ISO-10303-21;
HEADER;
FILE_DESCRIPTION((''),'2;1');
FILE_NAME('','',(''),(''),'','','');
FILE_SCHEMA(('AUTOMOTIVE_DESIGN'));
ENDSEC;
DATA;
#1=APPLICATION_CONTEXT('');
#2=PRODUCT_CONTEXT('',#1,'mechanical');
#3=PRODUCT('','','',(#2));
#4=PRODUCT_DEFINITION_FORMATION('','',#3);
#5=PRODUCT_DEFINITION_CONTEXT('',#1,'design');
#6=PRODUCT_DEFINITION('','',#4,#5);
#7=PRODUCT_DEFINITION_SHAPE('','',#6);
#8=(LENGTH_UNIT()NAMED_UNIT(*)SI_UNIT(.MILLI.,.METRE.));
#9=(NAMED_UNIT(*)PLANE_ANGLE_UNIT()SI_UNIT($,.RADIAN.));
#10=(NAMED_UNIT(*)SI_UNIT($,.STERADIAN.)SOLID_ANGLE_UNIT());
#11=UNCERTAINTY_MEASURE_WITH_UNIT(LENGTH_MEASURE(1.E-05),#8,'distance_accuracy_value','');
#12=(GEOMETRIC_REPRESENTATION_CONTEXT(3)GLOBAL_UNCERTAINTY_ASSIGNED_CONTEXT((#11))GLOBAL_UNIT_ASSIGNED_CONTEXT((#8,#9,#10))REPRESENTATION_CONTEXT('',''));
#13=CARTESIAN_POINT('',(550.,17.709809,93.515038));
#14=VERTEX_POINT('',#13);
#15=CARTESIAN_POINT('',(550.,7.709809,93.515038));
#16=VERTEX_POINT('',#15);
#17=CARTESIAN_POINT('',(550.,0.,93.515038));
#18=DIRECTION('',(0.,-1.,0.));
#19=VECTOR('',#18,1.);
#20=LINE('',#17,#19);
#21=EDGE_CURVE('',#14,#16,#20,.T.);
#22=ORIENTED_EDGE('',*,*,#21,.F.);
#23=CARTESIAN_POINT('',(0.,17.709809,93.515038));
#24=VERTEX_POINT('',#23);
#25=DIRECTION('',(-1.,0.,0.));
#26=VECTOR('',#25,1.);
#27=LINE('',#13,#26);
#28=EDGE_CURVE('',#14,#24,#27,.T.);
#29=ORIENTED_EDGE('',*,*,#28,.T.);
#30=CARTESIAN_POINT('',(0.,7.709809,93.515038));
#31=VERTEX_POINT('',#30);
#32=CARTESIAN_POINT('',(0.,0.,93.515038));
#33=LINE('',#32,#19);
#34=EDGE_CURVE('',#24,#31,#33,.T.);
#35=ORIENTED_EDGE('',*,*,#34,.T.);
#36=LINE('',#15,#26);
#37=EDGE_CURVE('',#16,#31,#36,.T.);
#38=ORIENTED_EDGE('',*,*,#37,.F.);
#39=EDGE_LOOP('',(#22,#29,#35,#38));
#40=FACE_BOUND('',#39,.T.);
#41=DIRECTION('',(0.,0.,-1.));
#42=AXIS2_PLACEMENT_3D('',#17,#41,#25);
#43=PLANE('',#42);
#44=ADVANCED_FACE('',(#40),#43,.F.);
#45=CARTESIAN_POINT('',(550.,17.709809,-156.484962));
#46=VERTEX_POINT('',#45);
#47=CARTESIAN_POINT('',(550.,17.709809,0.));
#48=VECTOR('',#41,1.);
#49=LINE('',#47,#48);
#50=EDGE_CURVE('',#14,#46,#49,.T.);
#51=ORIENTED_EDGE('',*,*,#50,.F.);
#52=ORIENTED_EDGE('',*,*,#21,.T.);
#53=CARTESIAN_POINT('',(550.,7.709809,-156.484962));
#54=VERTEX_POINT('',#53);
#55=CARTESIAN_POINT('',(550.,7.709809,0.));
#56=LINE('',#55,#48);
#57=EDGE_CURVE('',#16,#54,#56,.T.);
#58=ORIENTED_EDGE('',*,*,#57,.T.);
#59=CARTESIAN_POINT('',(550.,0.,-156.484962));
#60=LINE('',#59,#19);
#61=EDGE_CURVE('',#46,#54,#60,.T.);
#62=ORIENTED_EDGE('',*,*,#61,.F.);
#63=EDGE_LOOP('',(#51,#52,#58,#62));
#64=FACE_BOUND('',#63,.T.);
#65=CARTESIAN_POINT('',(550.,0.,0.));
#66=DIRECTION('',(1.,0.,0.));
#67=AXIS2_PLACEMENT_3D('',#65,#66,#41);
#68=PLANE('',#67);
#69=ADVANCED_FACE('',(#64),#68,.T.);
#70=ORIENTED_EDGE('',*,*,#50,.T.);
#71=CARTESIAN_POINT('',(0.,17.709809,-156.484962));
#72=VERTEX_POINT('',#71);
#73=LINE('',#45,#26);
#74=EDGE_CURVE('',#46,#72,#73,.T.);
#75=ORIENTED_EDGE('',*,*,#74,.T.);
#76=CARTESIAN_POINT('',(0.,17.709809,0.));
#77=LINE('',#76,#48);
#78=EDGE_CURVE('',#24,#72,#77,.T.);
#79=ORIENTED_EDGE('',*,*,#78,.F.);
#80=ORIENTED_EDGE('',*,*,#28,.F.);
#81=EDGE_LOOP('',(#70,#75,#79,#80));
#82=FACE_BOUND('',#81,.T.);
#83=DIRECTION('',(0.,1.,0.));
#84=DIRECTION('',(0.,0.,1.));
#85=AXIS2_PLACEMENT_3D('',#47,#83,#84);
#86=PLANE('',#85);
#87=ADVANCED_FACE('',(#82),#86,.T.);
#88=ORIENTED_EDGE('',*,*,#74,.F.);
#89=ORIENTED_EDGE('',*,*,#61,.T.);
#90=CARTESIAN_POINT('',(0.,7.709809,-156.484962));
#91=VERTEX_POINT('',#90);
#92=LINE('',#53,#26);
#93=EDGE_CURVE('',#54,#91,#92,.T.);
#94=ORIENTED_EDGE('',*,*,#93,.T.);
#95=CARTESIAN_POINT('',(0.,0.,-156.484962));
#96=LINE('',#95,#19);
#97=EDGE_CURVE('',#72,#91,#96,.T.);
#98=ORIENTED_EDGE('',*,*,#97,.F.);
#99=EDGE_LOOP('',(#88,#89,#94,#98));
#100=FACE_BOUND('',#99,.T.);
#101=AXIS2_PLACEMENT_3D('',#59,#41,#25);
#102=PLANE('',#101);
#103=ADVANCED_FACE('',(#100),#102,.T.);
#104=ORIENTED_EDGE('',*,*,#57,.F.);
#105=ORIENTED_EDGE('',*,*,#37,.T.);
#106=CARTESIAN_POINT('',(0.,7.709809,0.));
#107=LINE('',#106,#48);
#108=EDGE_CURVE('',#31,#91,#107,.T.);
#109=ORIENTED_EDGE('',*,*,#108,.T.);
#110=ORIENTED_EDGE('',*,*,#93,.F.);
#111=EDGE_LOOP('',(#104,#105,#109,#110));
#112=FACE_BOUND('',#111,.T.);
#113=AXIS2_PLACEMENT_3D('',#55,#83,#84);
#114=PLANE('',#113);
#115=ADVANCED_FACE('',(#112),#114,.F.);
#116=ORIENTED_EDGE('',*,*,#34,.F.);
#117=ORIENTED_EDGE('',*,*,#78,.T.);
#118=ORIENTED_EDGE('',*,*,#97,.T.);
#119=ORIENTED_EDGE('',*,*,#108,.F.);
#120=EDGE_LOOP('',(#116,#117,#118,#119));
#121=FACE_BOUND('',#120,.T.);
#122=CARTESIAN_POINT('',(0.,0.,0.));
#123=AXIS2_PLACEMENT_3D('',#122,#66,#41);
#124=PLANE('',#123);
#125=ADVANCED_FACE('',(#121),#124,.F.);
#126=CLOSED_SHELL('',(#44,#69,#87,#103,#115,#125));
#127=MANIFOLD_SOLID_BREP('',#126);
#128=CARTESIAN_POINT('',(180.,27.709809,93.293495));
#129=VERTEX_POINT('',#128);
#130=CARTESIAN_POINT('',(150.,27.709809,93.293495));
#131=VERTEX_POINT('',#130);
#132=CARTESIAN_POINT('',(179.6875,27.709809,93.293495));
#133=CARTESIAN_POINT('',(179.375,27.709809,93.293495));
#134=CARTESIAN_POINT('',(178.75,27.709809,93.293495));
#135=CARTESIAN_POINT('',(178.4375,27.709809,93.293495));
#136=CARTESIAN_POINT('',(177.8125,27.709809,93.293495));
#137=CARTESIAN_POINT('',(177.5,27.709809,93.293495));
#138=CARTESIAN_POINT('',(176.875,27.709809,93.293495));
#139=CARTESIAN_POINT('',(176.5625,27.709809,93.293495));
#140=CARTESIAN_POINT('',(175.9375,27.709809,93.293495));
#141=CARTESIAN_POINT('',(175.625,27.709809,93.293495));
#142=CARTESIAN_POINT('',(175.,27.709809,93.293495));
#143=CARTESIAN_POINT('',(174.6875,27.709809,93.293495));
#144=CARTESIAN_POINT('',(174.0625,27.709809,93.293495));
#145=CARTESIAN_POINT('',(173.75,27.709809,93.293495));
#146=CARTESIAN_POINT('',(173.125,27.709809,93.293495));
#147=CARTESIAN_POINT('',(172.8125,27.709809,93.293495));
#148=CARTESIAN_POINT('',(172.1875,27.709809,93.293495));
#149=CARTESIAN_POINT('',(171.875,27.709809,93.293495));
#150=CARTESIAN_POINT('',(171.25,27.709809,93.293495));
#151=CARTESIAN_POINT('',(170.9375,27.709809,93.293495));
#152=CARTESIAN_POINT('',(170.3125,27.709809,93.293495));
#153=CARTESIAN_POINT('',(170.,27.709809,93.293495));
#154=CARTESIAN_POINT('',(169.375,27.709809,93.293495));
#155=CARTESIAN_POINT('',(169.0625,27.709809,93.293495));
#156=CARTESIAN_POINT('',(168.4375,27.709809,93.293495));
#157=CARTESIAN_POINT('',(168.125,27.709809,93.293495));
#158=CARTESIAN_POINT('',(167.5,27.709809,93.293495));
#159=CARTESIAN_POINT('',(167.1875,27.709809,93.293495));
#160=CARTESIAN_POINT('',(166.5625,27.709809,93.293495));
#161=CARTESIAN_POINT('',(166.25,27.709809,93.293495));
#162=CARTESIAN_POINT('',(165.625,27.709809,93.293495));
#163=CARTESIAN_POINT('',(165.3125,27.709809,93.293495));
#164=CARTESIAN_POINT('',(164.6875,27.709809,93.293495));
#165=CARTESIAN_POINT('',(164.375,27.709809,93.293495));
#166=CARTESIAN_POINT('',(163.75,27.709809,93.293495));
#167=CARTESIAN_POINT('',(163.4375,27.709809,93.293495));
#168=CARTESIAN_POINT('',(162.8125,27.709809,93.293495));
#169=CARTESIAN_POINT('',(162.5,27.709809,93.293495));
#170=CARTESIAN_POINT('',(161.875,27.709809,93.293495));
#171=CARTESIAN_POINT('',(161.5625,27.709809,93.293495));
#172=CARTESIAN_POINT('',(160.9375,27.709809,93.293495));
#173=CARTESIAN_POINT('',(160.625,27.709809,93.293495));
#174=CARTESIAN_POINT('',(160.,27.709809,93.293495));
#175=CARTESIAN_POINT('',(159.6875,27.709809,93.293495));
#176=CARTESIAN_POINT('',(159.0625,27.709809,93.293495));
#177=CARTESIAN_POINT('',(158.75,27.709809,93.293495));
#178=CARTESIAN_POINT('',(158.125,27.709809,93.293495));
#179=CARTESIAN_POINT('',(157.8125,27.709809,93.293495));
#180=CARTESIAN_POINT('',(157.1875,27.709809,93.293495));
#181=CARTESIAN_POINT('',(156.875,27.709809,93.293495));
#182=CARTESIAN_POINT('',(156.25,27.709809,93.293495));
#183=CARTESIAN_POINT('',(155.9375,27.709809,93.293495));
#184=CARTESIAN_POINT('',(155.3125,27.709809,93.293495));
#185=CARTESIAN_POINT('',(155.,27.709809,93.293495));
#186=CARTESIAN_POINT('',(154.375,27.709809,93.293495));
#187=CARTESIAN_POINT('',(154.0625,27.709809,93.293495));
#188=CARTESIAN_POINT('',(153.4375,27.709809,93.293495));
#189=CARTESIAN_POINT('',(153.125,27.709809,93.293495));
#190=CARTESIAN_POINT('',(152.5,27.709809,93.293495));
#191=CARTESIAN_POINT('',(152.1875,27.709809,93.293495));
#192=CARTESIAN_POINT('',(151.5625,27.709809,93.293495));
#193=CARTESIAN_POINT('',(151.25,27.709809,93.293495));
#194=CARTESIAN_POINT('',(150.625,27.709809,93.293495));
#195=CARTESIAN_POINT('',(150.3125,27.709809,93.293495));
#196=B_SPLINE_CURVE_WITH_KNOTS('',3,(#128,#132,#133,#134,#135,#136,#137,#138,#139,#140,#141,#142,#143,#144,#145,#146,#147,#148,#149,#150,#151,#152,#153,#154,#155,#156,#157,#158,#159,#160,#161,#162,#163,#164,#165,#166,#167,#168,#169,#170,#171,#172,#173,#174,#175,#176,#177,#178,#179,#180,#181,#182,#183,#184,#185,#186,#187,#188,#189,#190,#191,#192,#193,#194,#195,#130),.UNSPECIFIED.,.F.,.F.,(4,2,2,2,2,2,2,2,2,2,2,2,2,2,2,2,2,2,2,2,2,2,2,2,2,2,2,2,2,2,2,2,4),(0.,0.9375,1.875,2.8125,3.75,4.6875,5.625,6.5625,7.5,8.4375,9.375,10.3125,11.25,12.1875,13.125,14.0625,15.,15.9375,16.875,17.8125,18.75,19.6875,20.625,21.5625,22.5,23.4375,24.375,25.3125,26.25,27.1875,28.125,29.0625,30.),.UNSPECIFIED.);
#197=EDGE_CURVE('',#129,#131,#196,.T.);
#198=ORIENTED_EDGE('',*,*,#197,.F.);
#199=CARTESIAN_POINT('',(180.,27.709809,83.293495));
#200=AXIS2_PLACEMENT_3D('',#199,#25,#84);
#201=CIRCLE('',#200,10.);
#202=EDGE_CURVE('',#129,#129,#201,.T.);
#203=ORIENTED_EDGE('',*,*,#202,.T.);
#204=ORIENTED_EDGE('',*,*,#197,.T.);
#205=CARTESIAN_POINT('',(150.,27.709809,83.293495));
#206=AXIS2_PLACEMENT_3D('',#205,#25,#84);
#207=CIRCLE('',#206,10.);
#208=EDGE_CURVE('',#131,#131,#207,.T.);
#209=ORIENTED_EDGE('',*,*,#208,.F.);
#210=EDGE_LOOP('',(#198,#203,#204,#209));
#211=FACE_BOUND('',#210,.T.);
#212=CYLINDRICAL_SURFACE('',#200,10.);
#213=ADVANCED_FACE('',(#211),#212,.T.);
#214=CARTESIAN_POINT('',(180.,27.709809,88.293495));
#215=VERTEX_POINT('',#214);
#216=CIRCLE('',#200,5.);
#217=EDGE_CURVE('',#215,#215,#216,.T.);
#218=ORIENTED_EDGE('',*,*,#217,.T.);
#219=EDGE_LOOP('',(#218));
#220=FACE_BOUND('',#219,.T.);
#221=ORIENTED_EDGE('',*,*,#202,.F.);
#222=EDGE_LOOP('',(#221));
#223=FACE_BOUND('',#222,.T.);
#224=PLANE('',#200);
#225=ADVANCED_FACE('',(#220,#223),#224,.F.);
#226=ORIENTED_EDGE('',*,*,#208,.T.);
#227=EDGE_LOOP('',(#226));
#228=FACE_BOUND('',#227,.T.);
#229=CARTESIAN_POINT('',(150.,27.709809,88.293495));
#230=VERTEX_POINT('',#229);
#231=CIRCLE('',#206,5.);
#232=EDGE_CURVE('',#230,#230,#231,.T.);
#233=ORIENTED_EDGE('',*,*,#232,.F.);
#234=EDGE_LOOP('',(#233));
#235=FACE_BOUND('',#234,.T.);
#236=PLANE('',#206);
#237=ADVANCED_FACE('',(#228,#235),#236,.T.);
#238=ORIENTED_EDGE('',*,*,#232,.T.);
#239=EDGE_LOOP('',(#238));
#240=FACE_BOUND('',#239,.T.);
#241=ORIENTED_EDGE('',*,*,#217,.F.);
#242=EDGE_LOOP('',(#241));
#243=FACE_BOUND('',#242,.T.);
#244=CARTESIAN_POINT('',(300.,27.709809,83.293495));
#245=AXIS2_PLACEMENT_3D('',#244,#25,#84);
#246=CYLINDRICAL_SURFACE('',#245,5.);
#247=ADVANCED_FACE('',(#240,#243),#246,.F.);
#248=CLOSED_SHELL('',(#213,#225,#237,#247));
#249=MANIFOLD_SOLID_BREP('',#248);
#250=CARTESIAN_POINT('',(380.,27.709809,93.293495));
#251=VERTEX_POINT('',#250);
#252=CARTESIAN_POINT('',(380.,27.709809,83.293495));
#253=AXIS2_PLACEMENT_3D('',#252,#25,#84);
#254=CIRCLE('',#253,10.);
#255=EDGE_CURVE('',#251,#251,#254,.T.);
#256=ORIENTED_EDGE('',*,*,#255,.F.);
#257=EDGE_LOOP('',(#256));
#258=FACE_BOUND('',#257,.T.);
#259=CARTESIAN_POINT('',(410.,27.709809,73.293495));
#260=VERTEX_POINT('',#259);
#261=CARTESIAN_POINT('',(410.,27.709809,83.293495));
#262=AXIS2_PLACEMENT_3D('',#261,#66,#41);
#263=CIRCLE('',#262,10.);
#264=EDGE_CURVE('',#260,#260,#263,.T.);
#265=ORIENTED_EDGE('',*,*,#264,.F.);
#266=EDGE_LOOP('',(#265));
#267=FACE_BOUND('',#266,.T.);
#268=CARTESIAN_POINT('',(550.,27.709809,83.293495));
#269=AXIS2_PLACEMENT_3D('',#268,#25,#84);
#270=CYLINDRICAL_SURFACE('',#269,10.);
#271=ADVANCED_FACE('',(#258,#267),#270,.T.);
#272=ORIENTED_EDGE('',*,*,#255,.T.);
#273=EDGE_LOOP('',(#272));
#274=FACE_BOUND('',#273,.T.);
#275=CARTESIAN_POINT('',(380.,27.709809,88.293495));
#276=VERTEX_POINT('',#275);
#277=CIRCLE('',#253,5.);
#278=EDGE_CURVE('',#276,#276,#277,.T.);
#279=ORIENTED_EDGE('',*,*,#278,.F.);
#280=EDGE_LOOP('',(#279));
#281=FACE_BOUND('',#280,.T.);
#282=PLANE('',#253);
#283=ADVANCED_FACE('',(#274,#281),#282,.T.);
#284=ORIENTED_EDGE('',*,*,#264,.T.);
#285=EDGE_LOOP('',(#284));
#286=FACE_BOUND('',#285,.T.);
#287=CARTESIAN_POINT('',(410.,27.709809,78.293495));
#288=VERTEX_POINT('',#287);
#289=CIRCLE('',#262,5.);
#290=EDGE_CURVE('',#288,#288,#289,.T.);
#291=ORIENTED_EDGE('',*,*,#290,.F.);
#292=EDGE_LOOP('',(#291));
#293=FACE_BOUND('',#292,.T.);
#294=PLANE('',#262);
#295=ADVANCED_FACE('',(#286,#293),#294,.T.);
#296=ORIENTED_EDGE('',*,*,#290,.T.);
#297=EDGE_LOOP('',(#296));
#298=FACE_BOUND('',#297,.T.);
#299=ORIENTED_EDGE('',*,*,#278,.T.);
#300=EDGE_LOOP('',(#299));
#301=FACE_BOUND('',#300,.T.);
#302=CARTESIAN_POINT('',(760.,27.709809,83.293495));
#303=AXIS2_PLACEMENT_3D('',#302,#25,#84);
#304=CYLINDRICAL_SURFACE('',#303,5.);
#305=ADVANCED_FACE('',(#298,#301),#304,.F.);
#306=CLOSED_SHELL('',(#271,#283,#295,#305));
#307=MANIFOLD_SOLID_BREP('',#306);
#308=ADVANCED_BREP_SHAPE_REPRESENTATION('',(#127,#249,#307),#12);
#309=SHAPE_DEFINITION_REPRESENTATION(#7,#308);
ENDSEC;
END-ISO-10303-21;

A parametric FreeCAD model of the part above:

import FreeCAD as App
import Part
import Sketcher
Q = App.Units.Quantity


def add_polygon(sketch, points):
    """Adds a closed chain of lines whose ends are joined by coincident constraints."""
    first, n = sketch.GeometryCount, len(points)
    for a, b in zip(points, points[1:] + points[:1]):
        sketch.addGeometry(Part.LineSegment(App.Vector(*a, 0), App.Vector(*b, 0)), False)
    for i in range(n):
        sketch.addConstraint(Sketcher.Constraint("Coincident", first + i, 2, first + (i + 1) % n, 1))

doc = App.newDocument("Part")
body = doc.addObject("PartDesign::Body", "Body")

# Sketch on YZ plane
sketch1 = body.newObject("Sketcher::SketchObject", "Sketch")
sketch1.AttachmentSupport = (doc.getObject("YZ_Plane"), [""])
sketch1.MapMode = "FlatFace"
sketch1.addGeometry(Part.Circle(App.Vector(28, 83, 0), App.Vector(0, 0, 1), 10), False)
sketch1.addConstraint(Sketcher.Constraint("Diameter", 0, Q("20 mm")))
sketch1.addConstraint(Sketcher.Constraint("DistanceX", -1, 1, 0, 3, Q("27.709809 mm")))
sketch1.addConstraint(Sketcher.Constraint("DistanceY", -1, 1, 0, 3, Q("83.293495 mm")))
pad1 = body.newObject("PartDesign::Pad", "Pad")
pad1.Profile = sketch1
pad1.Length = 550

# Sketch on YZ plane
sketch2 = body.newObject("Sketcher::SketchObject", "Sketch001")
sketch2.AttachmentSupport = (doc.getObject("YZ_Plane"), [""])
sketch2.MapMode = "FlatFace"
sketch2.AttachmentOffset = App.Placement(App.Vector(0, 0, 410), App.Rotation())
sketch2.addGeometry(Part.Circle(App.Vector(28, 83, 0), App.Vector(0, 0, 1), 10), False)
sketch2.addConstraint(Sketcher.Constraint("Diameter", 0, Q("20 mm")))
sketch2.addConstraint(Sketcher.Constraint("DistanceX", -1, 1, 0, 3, Q("27.709809 mm")))
sketch2.addConstraint(Sketcher.Constraint("DistanceY", -1, 1, 0, 3, Q("83.293495 mm")))
pocket1 = body.newObject("PartDesign::Pocket", "Pocket")
pocket1.Profile = sketch2
pocket1.Length = 140
pocket1.Reversed = True

# Sketch on YZ plane
sketch3 = body.newObject("Sketcher::SketchObject", "Sketch002")
sketch3.AttachmentSupport = (doc.getObject("YZ_Plane"), [""])
sketch3.MapMode = "FlatFace"
sketch3.addGeometry(Part.Circle(App.Vector(28, 83, 0), App.Vector(0, 0, 1), 10), False)
sketch3.addConstraint(Sketcher.Constraint("Diameter", 0, Q("20 mm")))
sketch3.addConstraint(Sketcher.Constraint("DistanceX", -1, 1, 0, 3, Q("27.709809 mm")))
sketch3.addConstraint(Sketcher.Constraint("DistanceY", -1, 1, 0, 3, Q("83.293495 mm")))
pocket2 = body.newObject("PartDesign::Pocket", "Pocket001")
pocket2.Profile = sketch3
pocket2.Length = 380
pocket2.Reversed = True

# Sketch on YZ plane
sketch4 = body.newObject("Sketcher::SketchObject", "Sketch003")
sketch4.AttachmentSupport = (doc.getObject("YZ_Plane"), [""])
sketch4.MapMode = "FlatFace"
sketch4.AttachmentOffset = App.Placement(App.Vector(0, 0, 380), App.Rotation())
sketch4.addGeometry(Part.Circle(App.Vector(28, 83, 0), App.Vector(0, 0, 1), 5), False)
sketch4.addConstraint(Sketcher.Constraint("Diameter", 0, Q("10 mm")))
sketch4.addConstraint(Sketcher.Constraint("DistanceX", -1, 1, 0, 3, Q("27.709809 mm")))
sketch4.addConstraint(Sketcher.Constraint("DistanceY", -1, 1, 0, 3, Q("83.293495 mm")))
pocket3 = body.newObject("PartDesign::Pocket", "Pocket002")
pocket3.Profile = sketch4
pocket3.Length = 380
pocket3.Reversed = True
body2 = doc.addObject("PartDesign::Body", "Body001")

# Sketch on YZ plane
sketch5 = body2.newObject("Sketcher::SketchObject", "Sketch004")
sketch5.AttachmentSupport = (doc.getObject("YZ_Plane001"), [""])
sketch5.MapMode = "FlatFace"
add_polygon(sketch5, [(18, 94), (8, 94), (8, -156), (18, -156)])  # lines 0-3
sketch5.addConstraint(Sketcher.Constraint("Horizontal", 0))
sketch5.addConstraint(Sketcher.Constraint("Vertical", 1))
sketch5.addConstraint(Sketcher.Constraint("Horizontal", 2))
sketch5.addConstraint(Sketcher.Constraint("Vertical", 3))
sketch5.addConstraint(Sketcher.Constraint("DistanceX", 0, 2, 0, 1, Q("10 mm")))
sketch5.addConstraint(Sketcher.Constraint("DistanceY", 1, 2, 1, 1, Q("250 mm")))
sketch5.addConstraint(Sketcher.Constraint("DistanceX", -1, 1, 0, 2, Q("7.709809 mm")))
sketch5.addConstraint(Sketcher.Constraint("DistanceY", -1, 1, 0, 2, Q("93.515038 mm")))
pad2 = body2.newObject("PartDesign::Pad", "Pad001")
pad2.Profile = sketch5
pad2.Length = 550
body3 = doc.addObject("PartDesign::Body", "Body002")

# Sketch on YZ plane
sketch6 = body3.newObject("Sketcher::SketchObject", "Sketch005")
sketch6.AttachmentSupport = (doc.getObject("YZ_Plane002"), [""])
sketch6.MapMode = "FlatFace"
sketch6.addGeometry(Part.Circle(App.Vector(28, 83, 0), App.Vector(0, 0, 1), 10), False)
sketch6.addConstraint(Sketcher.Constraint("Diameter", 0, Q("20 mm")))
sketch6.addConstraint(Sketcher.Constraint("DistanceX", -1, 1, 0, 3, Q("27.709809 mm")))
sketch6.addConstraint(Sketcher.Constraint("DistanceY", -1, 1, 0, 3, Q("83.293495 mm")))
pad3 = body3.newObject("PartDesign::Pad", "Pad002")
pad3.Profile = sketch6
pad3.Length = 180

# Sketch on YZ plane
sketch7 = body3.newObject("Sketcher::SketchObject", "Sketch006")
sketch7.AttachmentSupport = (doc.getObject("YZ_Plane002"), [""])
sketch7.MapMode = "FlatFace"
sketch7.addGeometry(Part.Circle(App.Vector(28, 83, 0), App.Vector(0, 0, 1), 10), False)
sketch7.addConstraint(Sketcher.Constraint("Diameter", 0, Q("20 mm")))
sketch7.addConstraint(Sketcher.Constraint("DistanceX", -1, 1, 0, 3, Q("27.709809 mm")))
sketch7.addConstraint(Sketcher.Constraint("DistanceY", -1, 1, 0, 3, Q("83.293495 mm")))
pocket4 = body3.newObject("PartDesign::Pocket", "Pocket003")
pocket4.Profile = sketch7
pocket4.Length = 150
pocket4.Reversed = True

# Sketch on YZ plane
sketch8 = body3.newObject("Sketcher::SketchObject", "Sketch007")
sketch8.AttachmentSupport = (doc.getObject("YZ_Plane002"), [""])
sketch8.MapMode = "FlatFace"
sketch8.AttachmentOffset = App.Placement(App.Vector(0, 0, 150), App.Rotation())
sketch8.addGeometry(Part.Circle(App.Vector(28, 83, 0), App.Vector(0, 0, 1), 5), False)
sketch8.addConstraint(Sketcher.Constraint("Diameter", 0, Q("10 mm")))
sketch8.addConstraint(Sketcher.Constraint("DistanceX", -1, 1, 0, 3, Q("27.709809 mm")))
sketch8.addConstraint(Sketcher.Constraint("DistanceY", -1, 1, 0, 3, Q("83.293495 mm")))
pocket5 = body3.newObject("PartDesign::Pocket", "Pocket004")
pocket5.Profile = sketch8
pocket5.Length = 150
pocket5.Reversed = True

doc.recompute()
